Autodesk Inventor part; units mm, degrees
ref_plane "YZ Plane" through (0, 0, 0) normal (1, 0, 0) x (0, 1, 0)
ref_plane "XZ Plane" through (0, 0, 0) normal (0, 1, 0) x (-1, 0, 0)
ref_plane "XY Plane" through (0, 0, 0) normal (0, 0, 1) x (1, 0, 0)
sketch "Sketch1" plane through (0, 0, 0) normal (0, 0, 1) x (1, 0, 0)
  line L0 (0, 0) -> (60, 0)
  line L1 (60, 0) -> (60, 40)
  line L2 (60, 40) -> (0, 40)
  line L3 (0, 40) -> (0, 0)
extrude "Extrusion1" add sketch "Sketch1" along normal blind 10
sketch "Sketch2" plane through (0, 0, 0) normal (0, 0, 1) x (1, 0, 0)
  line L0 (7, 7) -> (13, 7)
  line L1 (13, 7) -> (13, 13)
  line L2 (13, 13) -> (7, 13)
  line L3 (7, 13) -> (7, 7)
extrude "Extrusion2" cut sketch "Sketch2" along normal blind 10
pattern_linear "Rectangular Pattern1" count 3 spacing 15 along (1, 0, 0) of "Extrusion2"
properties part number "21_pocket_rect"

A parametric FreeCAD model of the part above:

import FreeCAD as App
import Part
import Sketcher

V = App.Vector
Q = App.Units.Quantity

doc = App.newDocument("Part")
params = doc.addObject("Spreadsheet::Sheet", "Params")
for row, (alias, value) in enumerate([
    ("sketch1_width", "60 mm"),
    ("sketch1_height", "40 mm"),
    ("pad1_length", "10 mm"),
    ("sketch2_width", "6 mm"),
    ("pocket1_length", "10 mm"),
    ("linearpattern_pitch", "15 mm"),
], start=1):
    params.set(f"A{row}", alias)
    params.set(f"B{row}", "=" + value)
    params.setAlias(f"B{row}", alias)

body = doc.addObject("PartDesign::Body", "Body")

# Sketch on XY plane
sketch1 = body.newObject("Sketcher::SketchObject", "Sketch")
sketch1.AttachmentSupport = (doc.getObject("XY_Plane"), [""])
sketch1.MapMode = "FlatFace"
sketch1.addGeometry([
    Part.LineSegment(V(0, 40, 0), V(0, 0, 0)),
    Part.LineSegment(V(0, 0, 0), V(60, 0, 0)),
    Part.LineSegment(V(60, 0, 0), V(60, 40, 0)),
    Part.LineSegment(V(60, 40, 0), V(0, 40, 0)),
], False)
sketch1.addConstraint([
    Sketcher.Constraint("Coincident", 0, 2, 1, 1),
    Sketcher.Constraint("Coincident", 1, 2, 2, 1),
    Sketcher.Constraint("Coincident", 2, 2, 3, 1),
    Sketcher.Constraint("Coincident", 3, 2, 0, 1),
    Sketcher.Constraint("Vertical", 0),
    Sketcher.Constraint("Horizontal", 1),
    Sketcher.Constraint("Vertical", 2),
    Sketcher.Constraint("Horizontal", 3),
    Sketcher.Constraint("Coincident", 0, 2, -1, 1),
    Sketcher.Constraint("DistanceX", 1, 1, 1, 2, Q("60 mm")),
    Sketcher.Constraint("DistanceY", 0, 2, 0, 1, Q("40 mm")),
])
sketch1.setExpression("Constraints[9]", "Params.sketch1_width")
sketch1.setExpression("Constraints[10]", "Params.sketch1_height")
pad1 = body.newObject("PartDesign::Pad", "Pad")
pad1.Profile = sketch1
pad1.setExpression("Length", "Params.pad1_length")

# Sketch on XY plane
sketch2 = body.newObject("Sketcher::SketchObject", "Sketch001")
sketch2.AttachmentSupport = (doc.getObject("XY_Plane"), [""])
sketch2.MapMode = "FlatFace"
sketch2.addGeometry([
    Part.LineSegment(V(7, 13, 0), V(7, 7, 0)),
    Part.LineSegment(V(7, 7, 0), V(13, 7, 0)),
    Part.LineSegment(V(13, 7, 0), V(13, 13, 0)),
    Part.LineSegment(V(13, 13, 0), V(7, 13, 0)),
], False)
sketch2.addConstraint([
    Sketcher.Constraint("Coincident", 0, 2, 1, 1),
    Sketcher.Constraint("Coincident", 1, 2, 2, 1),
    Sketcher.Constraint("Coincident", 2, 2, 3, 1),
    Sketcher.Constraint("Coincident", 3, 2, 0, 1),
    Sketcher.Constraint("Vertical", 0),
    Sketcher.Constraint("Horizontal", 1),
    Sketcher.Constraint("Vertical", 2),
    Sketcher.Constraint("Horizontal", 3),
    Sketcher.Constraint("Equal", 3, 0),
    Sketcher.Constraint("DistanceX", 1, 1, 1, 2, Q("6 mm")),
    Sketcher.Constraint("DistanceX", -1, 1, 0, 2, Q("7 mm")),
    Sketcher.Constraint("DistanceY", -1, 1, 0, 2, Q("7 mm")),
])
sketch2.setExpression("Constraints[9]", "Params.sketch2_width")
pocket1 = body.newObject("PartDesign::Pocket", "Pocket")
pocket1.Profile = sketch2
pocket1.setExpression("Length", "Params.pocket1_length")
pocket1.Reversed = True
doc.recompute()

linearpattern = body.newObject("PartDesign::LinearPattern", "LinearPattern")
linearpattern.Originals = [pocket1]
linearpattern.Direction = (doc.getObject("X_Axis"), [""])
linearpattern.Mode = "offset"
linearpattern.setExpression("Offset", "Params.linearpattern_pitch")
linearpattern.Occurrences = 3
body.Tip = linearpattern

doc.recompute()
